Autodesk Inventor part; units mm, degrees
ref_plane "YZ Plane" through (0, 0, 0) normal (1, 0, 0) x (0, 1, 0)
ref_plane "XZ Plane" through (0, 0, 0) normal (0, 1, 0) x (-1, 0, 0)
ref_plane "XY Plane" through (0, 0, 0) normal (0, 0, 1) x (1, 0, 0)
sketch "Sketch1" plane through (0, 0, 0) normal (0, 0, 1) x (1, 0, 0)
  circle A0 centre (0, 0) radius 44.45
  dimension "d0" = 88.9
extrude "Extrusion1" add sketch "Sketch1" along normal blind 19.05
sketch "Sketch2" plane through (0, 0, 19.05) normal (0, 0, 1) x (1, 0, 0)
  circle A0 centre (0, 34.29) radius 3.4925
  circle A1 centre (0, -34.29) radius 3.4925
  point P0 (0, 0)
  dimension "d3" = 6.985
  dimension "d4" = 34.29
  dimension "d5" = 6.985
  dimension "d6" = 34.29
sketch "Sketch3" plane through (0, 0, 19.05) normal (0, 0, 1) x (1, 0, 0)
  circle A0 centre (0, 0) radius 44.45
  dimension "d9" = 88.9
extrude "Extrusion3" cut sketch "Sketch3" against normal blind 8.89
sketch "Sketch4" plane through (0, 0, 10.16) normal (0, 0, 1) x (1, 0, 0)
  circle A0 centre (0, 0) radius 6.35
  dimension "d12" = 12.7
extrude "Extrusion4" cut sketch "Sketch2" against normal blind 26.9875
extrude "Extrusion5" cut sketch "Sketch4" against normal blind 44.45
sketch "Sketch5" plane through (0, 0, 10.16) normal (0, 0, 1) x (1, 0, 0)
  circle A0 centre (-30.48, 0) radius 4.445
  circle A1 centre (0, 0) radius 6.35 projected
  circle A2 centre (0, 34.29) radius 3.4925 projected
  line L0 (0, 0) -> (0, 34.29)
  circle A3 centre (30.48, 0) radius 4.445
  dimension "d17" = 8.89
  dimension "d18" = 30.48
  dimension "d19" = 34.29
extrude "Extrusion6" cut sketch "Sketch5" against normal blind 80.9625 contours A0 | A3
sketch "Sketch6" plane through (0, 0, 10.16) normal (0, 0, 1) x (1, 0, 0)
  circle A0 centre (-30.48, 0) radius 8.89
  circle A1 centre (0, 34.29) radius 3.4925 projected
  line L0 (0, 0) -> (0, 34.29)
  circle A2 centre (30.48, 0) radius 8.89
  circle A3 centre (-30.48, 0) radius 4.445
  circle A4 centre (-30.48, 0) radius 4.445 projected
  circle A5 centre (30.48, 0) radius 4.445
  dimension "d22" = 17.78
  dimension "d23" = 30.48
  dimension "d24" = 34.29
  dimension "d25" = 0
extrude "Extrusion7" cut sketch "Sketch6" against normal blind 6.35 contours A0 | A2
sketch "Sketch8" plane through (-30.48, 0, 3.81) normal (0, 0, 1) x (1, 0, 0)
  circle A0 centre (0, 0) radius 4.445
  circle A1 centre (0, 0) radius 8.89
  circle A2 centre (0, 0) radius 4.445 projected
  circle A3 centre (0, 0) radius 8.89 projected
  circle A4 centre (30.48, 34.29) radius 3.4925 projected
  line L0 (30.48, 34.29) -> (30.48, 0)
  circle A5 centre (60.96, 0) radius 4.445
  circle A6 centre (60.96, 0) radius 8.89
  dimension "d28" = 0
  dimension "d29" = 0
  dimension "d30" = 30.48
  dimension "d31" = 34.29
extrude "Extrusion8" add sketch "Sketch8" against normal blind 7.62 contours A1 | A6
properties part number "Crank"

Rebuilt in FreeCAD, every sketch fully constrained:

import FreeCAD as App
import Part
import Sketcher
from FreeCAD import Vector
Q = App.Units.Quantity

doc = App.newDocument("Part")
body = doc.addObject("PartDesign::Body", "Body")

# Sketch on XY plane
sketch1 = doc.addObject("Sketcher::SketchObject", "Sketch")
body.addObject(sketch1)
sketch1.AttachmentSupport = (doc.XY_Plane, [""])
sketch1.MapMode = "FlatFace"
sketch1.addGeometry(Part.Circle(Vector(0, 0, 0), Vector(0, 0, 1), 44), False)
sketch1.addConstraint(Sketcher.Constraint("Coincident", 0, 3, -1, 1))
sketch1.addConstraint(Sketcher.Constraint("Diameter", 0, Q("3.5 in")))
pad1 = doc.addObject("PartDesign::Pad", "Pad")
body.addObject(pad1)
pad1.Profile = sketch1
pad1.Length = Q("0.75 in")

# Sketch on XY plane
sketch2 = doc.addObject("Sketcher::SketchObject", "Sketch001")
body.addObject(sketch2)
sketch2.AttachmentSupport = (doc.XY_Plane, [""])
sketch2.MapMode = "FlatFace"
sketch2.AttachmentOffset = App.Placement(Vector(0, 0, 0.75 * 25.4), App.Rotation())
sketch2.addGeometry(Part.Circle(Vector(0, 0, 0), Vector(0, 0, 1), 44), False)
sketch2.addConstraint(Sketcher.Constraint("Coincident", 0, 3, -1, 1))
sketch2.addConstraint(Sketcher.Constraint("Diameter", 0, Q("3.5 in")))
pocket1 = doc.addObject("PartDesign::Pocket", "Pocket")
body.addObject(pocket1)
pocket1.Profile = sketch2
pocket1.Length = Q("0.35 in")

# Sketch on XY plane
sketch3 = doc.addObject("Sketcher::SketchObject", "Sketch002")
body.addObject(sketch3)
sketch3.AttachmentSupport = (doc.XY_Plane, [""])
sketch3.MapMode = "FlatFace"
sketch3.AttachmentOffset = App.Placement(Vector(0, 0, 0.75 * 25.4), App.Rotation())
sketch3.addGeometry(Part.Circle(Vector(0, 34.3, 0), Vector(0, 0, 1), 3.5), False)
sketch3.addGeometry(Part.Circle(Vector(0, -34.3, 0), Vector(0, 0, 1), 3.5), False)
sketch3.addConstraint(Sketcher.Constraint("Equal", 0, 1))
sketch3.addConstraint(Sketcher.Constraint("Symmetric", 0, 3, 1, 3, -1, 1))
sketch3.addConstraint(Sketcher.Constraint("PointOnObject", 0, 3, -2))
sketch3.addConstraint(Sketcher.Constraint("Diameter", 0, Q("0.275 in")))
sketch3.addConstraint(Sketcher.Constraint("DistanceY", -1, 1, 0, 3, Q("1.35 in")))
pocket2 = doc.addObject("PartDesign::Pocket", "Pocket001")
body.addObject(pocket2)
pocket2.Profile = sketch3
pocket2.Length = Q("1.0625 in")

# Sketch on XY plane
sketch4 = doc.addObject("Sketcher::SketchObject", "Sketch003")
body.addObject(sketch4)
sketch4.AttachmentSupport = (doc.XY_Plane, [""])
sketch4.MapMode = "FlatFace"
sketch4.AttachmentOffset = App.Placement(Vector(0, 0, 0.4 * 25.4), App.Rotation())
sketch4.addGeometry(Part.Circle(Vector(0, 0, 0), Vector(0, 0, 1), 6), False)
sketch4.addConstraint(Sketcher.Constraint("Coincident", 0, 3, -1, 1))
sketch4.addConstraint(Sketcher.Constraint("Diameter", 0, Q("0.5 in")))
pocket3 = doc.addObject("PartDesign::Pocket", "Pocket002")
body.addObject(pocket3)
pocket3.Profile = sketch4
pocket3.Length = Q("1.75 in")

# Sketch on XY plane
sketch5 = doc.addObject("Sketcher::SketchObject", "Sketch004")
body.addObject(sketch5)
sketch5.AttachmentSupport = (doc.XY_Plane, [""])
sketch5.MapMode = "FlatFace"
sketch5.AttachmentOffset = App.Placement(Vector(0, 0, 0.4 * 25.4), App.Rotation())
sketch5.addGeometry(Part.Circle(Vector(-30.5, 0, 0), Vector(0, 0, 1), 4.4), False)
sketch5.addGeometry(Part.Circle(Vector(30.5, 0, 0), Vector(0, 0, 1), 4.4), False)
sketch5.addConstraint(Sketcher.Constraint("Equal", 0, 1))
sketch5.addConstraint(Sketcher.Constraint("Symmetric", 0, 3, 1, 3, -1, 1))
sketch5.addConstraint(Sketcher.Constraint("PointOnObject", 0, 3, -1))
sketch5.addConstraint(Sketcher.Constraint("Diameter", 0, Q("0.35 in")))
sketch5.addConstraint(Sketcher.Constraint("DistanceX", 0, 3, -1, 1, Q("1.2 in")))
pocket4 = doc.addObject("PartDesign::Pocket", "Pocket003")
body.addObject(pocket4)
pocket4.Profile = sketch5
pocket4.Length = Q("3.1875 in")

# Sketch on XY plane
sketch6 = doc.addObject("Sketcher::SketchObject", "Sketch005")
body.addObject(sketch6)
sketch6.AttachmentSupport = (doc.XY_Plane, [""])
sketch6.MapMode = "FlatFace"
sketch6.AttachmentOffset = App.Placement(Vector(0, 0, 0.4 * 25.4), App.Rotation())
sketch6.addGeometry(Part.Circle(Vector(-30.5, 0, 0), Vector(0, 0, 1), 8.9), False)
sketch6.addGeometry(Part.Circle(Vector(-30.5, 0, 0), Vector(0, 0, 1), 4.4), False)
sketch6.addGeometry(Part.Circle(Vector(30.5, 0, 0), Vector(0, 0, 1), 8.9), False)
sketch6.addGeometry(Part.Circle(Vector(30.5, 0, 0), Vector(0, 0, 1), 4.4), False)
sketch6.addConstraint(Sketcher.Constraint("Coincident", 1, 3, 0, 3))
sketch6.addConstraint(Sketcher.Constraint("Coincident", 3, 3, 2, 3))
sketch6.addConstraint(Sketcher.Constraint("Equal", 0, 2))
sketch6.addConstraint(Sketcher.Constraint("Equal", 1, 3))
sketch6.addConstraint(Sketcher.Constraint("Symmetric", 0, 3, 2, 3, -1, 1))
sketch6.addConstraint(Sketcher.Constraint("PointOnObject", 0, 3, -1))
sketch6.addConstraint(Sketcher.Constraint("Diameter", 0, Q("0.7 in")))
sketch6.addConstraint(Sketcher.Constraint("DistanceX", 0, 3, -1, 1, Q("1.2 in")))
sketch6.addConstraint(Sketcher.Constraint("Diameter", 1, Q("0.35 in")))
pocket5 = doc.addObject("PartDesign::Pocket", "Pocket004")
body.addObject(pocket5)
pocket5.Profile = sketch6
pocket5.Length = Q("0.25 in")

# Sketch on XY plane
sketch7 = doc.addObject("Sketcher::SketchObject", "Sketch006")
body.addObject(sketch7)
sketch7.AttachmentSupport = (doc.XY_Plane, [""])
sketch7.MapMode = "FlatFace"
sketch7.AttachmentOffset = App.Placement(Vector(0, 0, 0.15 * 25.4), App.Rotation())
sketch7.addGeometry(Part.Circle(Vector(-30.5, 0, 0), Vector(0, 0, 1), 8.9), False)
sketch7.addGeometry(Part.Circle(Vector(-30.5, 0, 0), Vector(0, 0, 1), 4.4), False)
sketch7.addGeometry(Part.Circle(Vector(30.5, 0, 0), Vector(0, 0, 1), 8.9), False)
sketch7.addGeometry(Part.Circle(Vector(30.5, 0, 0), Vector(0, 0, 1), 4.4), False)
sketch7.addConstraint(Sketcher.Constraint("Coincident", 1, 3, 0, 3))
sketch7.addConstraint(Sketcher.Constraint("Coincident", 3, 3, 2, 3))
sketch7.addConstraint(Sketcher.Constraint("Equal", 0, 2))
sketch7.addConstraint(Sketcher.Constraint("Equal", 1, 3))
sketch7.addConstraint(Sketcher.Constraint("Symmetric", 0, 3, 2, 3, -1, 1))
sketch7.addConstraint(Sketcher.Constraint("PointOnObject", 0, 3, -1))
sketch7.addConstraint(Sketcher.Constraint("Diameter", 0, Q("0.7 in")))
sketch7.addConstraint(Sketcher.Constraint("DistanceX", 0, 3, -1, 1, Q("1.2 in")))
sketch7.addConstraint(Sketcher.Constraint("Diameter", 1, Q("0.35 in")))
pad2 = doc.addObject("PartDesign::Pad", "Pad001")
body.addObject(pad2)
pad2.Profile = sketch7
pad2.Length = Q("0.3 in")
pad2.Reversed = True

doc.recompute()
